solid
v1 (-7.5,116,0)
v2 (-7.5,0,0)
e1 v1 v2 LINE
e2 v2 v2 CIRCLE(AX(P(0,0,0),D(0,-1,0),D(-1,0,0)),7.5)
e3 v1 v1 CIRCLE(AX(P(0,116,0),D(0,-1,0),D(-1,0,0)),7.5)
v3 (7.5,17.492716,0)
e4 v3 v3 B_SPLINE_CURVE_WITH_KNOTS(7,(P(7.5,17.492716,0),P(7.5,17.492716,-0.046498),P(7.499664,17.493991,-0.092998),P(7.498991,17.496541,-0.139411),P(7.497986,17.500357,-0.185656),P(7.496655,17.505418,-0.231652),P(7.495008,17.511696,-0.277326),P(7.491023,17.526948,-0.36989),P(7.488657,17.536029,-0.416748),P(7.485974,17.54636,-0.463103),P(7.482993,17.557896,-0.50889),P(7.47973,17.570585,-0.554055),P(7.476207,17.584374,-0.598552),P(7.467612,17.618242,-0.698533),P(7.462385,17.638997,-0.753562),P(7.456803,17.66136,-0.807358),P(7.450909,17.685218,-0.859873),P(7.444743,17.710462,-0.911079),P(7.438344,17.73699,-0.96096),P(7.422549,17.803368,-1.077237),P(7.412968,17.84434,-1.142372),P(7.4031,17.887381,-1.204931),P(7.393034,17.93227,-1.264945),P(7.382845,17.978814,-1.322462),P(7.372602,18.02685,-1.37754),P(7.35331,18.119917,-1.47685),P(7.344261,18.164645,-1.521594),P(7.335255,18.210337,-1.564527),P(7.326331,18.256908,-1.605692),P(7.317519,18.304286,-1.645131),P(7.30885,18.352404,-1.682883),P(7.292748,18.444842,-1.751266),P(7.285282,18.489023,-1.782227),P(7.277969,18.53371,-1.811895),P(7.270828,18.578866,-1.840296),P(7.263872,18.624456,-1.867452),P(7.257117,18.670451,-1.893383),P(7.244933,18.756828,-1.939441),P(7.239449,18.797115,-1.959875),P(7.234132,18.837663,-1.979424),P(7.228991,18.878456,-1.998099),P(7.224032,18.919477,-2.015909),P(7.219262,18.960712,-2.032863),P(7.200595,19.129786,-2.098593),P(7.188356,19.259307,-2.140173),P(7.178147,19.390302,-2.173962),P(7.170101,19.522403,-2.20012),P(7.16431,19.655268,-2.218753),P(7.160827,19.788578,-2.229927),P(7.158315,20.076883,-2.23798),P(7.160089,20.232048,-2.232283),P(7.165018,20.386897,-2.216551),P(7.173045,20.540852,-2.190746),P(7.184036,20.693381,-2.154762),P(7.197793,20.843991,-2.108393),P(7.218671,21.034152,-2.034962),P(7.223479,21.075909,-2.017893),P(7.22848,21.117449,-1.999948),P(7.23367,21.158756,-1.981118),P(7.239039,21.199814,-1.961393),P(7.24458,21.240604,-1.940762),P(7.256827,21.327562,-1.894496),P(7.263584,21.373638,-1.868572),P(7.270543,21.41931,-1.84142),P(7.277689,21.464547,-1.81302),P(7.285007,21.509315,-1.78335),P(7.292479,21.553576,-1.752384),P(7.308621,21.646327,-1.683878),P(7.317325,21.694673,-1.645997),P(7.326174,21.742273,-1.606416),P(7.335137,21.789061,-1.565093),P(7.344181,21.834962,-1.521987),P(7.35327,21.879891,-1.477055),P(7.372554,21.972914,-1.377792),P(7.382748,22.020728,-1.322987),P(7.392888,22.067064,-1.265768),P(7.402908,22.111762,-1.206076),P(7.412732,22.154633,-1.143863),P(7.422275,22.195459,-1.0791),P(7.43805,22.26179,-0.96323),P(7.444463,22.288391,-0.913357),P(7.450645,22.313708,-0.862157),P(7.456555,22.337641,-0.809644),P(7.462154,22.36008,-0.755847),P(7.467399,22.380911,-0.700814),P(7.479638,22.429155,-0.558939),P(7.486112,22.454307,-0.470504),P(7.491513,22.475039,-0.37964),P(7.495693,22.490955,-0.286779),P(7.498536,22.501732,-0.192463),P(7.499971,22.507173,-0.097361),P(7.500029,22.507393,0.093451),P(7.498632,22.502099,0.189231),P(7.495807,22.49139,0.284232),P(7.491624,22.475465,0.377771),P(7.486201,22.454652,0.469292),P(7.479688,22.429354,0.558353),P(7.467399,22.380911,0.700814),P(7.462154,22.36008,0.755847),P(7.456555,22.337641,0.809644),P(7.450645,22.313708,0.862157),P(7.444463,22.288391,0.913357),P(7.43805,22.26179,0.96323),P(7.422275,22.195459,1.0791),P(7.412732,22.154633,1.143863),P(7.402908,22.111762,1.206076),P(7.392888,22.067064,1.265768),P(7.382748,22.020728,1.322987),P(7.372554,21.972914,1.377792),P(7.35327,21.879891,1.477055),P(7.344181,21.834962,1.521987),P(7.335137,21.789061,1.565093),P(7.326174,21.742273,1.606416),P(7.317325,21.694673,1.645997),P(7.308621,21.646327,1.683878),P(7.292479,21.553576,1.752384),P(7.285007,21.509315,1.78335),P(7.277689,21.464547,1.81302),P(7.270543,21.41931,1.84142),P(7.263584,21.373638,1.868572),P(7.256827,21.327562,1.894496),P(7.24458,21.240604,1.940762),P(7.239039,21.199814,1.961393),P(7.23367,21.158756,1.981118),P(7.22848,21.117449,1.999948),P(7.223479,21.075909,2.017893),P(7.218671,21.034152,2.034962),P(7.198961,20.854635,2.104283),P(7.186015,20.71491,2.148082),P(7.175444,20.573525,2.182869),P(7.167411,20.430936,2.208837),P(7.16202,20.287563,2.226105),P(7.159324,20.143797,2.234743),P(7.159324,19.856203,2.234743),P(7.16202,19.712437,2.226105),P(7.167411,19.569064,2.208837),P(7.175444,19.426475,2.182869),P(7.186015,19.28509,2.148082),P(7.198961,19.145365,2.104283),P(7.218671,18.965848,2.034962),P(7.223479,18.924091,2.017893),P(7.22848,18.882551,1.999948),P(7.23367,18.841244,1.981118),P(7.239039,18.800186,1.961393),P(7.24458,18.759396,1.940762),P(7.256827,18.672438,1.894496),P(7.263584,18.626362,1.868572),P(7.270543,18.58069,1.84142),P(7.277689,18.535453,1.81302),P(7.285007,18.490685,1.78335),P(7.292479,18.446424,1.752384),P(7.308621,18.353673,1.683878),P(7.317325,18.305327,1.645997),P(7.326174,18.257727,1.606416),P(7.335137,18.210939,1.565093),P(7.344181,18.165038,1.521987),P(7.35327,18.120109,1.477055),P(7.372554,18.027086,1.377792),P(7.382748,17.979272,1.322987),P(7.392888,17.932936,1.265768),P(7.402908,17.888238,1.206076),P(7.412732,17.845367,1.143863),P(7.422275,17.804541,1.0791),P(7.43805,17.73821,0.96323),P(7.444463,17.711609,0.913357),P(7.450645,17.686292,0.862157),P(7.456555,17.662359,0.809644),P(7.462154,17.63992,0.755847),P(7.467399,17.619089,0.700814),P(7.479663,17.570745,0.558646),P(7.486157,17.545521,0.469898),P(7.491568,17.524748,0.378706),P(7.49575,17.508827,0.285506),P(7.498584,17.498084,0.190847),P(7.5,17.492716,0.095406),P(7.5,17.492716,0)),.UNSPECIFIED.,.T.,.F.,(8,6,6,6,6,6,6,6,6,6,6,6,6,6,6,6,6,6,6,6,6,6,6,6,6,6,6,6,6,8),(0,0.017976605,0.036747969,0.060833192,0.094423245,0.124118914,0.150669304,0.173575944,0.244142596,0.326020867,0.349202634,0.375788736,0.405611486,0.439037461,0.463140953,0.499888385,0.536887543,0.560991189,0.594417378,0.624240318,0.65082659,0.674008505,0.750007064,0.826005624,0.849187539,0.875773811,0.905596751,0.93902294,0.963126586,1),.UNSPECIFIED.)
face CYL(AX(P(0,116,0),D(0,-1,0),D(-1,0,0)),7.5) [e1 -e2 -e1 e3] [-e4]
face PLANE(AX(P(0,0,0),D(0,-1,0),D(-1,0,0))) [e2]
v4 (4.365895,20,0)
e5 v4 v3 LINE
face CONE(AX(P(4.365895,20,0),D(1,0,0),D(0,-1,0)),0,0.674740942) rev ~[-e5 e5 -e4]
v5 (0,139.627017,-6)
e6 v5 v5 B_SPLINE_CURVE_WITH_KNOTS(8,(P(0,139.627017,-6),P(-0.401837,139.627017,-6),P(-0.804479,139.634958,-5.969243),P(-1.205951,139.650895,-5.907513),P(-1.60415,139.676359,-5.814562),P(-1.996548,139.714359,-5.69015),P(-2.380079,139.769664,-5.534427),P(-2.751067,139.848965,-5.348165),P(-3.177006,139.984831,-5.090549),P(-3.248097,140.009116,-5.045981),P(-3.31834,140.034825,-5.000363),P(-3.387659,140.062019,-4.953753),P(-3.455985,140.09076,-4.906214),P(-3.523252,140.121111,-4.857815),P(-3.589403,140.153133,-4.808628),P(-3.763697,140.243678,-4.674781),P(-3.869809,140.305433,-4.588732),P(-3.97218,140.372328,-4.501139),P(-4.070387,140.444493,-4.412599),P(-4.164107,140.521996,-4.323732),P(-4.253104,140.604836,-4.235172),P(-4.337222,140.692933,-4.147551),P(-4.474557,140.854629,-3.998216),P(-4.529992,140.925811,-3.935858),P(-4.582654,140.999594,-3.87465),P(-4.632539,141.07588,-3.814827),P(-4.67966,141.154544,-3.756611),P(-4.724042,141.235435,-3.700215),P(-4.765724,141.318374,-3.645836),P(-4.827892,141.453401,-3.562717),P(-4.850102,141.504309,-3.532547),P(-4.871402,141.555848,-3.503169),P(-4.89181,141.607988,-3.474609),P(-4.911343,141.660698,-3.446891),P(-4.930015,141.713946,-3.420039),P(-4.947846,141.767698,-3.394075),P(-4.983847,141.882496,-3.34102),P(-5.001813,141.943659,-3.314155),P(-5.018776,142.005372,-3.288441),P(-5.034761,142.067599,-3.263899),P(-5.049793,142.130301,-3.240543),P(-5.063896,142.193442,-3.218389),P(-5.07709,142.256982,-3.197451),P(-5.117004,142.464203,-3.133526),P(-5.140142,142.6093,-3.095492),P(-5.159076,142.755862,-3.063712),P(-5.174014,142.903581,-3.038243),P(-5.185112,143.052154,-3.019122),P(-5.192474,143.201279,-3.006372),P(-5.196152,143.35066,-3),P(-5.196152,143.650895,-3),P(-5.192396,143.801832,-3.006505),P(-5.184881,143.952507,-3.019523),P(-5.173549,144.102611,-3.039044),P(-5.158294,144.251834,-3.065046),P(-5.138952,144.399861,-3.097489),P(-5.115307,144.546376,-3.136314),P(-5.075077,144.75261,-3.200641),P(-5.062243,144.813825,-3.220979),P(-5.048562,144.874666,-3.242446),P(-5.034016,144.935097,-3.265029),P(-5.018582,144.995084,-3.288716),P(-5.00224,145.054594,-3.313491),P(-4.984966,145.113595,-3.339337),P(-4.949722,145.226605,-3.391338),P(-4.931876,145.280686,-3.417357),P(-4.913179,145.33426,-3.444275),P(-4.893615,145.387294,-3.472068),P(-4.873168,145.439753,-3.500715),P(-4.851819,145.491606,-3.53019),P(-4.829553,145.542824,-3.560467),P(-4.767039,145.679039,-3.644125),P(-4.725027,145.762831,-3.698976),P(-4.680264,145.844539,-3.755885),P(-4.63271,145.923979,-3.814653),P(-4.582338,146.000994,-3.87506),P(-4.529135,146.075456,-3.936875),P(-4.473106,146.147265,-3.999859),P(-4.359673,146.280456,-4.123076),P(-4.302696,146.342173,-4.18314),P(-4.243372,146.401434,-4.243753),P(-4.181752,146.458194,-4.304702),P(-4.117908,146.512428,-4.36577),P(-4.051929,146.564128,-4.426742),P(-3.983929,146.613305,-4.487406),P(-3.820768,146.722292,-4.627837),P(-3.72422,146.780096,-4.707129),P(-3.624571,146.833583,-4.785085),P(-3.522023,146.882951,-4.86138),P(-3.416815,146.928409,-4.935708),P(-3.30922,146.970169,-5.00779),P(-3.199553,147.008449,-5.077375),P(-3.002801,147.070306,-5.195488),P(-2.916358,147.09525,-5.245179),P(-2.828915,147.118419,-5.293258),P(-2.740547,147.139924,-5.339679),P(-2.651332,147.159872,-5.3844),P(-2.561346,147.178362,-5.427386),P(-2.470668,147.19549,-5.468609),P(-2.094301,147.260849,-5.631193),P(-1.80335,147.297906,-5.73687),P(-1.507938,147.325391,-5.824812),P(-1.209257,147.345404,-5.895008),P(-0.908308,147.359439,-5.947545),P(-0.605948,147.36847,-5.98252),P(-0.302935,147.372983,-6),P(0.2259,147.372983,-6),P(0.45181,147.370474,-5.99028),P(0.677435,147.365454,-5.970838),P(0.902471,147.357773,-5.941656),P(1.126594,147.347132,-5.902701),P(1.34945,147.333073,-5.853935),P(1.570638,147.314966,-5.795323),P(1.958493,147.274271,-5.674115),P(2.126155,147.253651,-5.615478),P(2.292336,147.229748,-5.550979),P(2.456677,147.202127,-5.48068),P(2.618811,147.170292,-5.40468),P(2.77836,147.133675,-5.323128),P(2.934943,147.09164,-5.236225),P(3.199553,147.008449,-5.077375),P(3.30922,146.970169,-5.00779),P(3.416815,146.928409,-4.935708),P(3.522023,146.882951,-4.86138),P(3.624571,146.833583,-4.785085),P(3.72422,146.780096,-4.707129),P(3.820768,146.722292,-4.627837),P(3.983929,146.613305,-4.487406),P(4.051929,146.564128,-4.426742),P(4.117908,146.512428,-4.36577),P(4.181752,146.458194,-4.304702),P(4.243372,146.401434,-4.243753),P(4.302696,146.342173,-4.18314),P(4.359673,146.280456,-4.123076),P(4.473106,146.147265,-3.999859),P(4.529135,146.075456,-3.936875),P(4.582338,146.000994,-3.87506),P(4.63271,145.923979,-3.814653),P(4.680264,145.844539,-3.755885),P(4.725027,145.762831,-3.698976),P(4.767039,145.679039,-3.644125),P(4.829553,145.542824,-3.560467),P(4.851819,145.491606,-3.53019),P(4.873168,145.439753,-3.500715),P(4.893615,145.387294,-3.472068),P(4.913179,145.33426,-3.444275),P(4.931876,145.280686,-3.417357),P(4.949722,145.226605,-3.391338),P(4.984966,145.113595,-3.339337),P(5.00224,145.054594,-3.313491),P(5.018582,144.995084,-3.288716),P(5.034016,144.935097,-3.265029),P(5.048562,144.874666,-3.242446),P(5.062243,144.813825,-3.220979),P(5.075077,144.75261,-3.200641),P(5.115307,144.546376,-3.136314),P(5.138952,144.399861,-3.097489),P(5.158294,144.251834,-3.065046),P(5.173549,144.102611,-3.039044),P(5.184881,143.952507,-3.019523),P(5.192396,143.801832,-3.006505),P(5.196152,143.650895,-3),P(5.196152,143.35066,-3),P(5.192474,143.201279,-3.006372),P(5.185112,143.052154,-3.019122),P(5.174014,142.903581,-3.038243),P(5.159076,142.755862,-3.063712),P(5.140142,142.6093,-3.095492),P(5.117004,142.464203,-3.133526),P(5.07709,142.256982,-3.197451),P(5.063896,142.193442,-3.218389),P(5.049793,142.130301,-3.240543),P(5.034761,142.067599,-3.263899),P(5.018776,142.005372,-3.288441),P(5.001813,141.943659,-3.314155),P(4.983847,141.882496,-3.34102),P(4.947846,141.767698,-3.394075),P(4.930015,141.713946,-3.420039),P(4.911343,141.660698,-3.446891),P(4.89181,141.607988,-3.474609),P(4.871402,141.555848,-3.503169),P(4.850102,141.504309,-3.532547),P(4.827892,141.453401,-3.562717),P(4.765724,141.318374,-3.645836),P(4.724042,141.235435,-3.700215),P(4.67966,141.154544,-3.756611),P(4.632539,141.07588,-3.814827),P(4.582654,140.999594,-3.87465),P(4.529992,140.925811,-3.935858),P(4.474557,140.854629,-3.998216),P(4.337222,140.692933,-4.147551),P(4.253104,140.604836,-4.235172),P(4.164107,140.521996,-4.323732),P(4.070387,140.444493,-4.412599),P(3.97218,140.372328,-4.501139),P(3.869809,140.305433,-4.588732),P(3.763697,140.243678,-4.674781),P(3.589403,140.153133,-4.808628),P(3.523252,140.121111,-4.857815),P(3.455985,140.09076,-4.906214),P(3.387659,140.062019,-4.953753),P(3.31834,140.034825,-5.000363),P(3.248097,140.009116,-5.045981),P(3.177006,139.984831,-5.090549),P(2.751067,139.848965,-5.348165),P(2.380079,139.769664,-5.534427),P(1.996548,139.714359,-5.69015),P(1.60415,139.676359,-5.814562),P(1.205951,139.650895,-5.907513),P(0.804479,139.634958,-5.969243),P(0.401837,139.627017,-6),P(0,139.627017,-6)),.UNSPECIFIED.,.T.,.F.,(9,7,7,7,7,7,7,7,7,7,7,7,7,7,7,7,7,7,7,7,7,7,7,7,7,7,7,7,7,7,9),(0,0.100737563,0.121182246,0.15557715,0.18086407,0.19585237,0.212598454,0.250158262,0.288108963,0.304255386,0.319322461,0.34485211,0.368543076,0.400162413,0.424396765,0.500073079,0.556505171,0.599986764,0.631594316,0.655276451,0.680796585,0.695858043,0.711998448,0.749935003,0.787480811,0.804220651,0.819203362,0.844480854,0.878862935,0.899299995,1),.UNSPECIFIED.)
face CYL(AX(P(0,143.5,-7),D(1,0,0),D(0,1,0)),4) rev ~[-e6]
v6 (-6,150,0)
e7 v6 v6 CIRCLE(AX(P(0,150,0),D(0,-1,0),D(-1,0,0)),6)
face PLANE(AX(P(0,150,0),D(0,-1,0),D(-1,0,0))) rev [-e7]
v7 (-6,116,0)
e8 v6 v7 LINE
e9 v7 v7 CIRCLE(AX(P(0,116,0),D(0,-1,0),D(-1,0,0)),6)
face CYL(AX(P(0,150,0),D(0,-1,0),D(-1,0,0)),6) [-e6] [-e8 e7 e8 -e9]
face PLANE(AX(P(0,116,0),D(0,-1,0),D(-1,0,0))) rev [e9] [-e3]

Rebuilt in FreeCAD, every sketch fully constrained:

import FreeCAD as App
import Part
import Sketcher
from FreeCAD import Vector

doc = App.newDocument("Part")
body = doc.addObject("PartDesign::Body", "Body")

sketch1 = body.newObject("Sketcher::SketchObject", "Sketch")
sketch1.AttachmentSupport = (doc.getObject("XY_Plane"), [""])
sketch1.MapMode = "FlatFace"
sketch1.addGeometry([
    Part.LineSegment(Vector(-7.5, 0, 0), Vector(0, 0, 0)),
    Part.LineSegment(Vector(0, 0, 0), Vector(0, 150, 0)),
    Part.LineSegment(Vector(0, 150, 0), Vector(-6, 150, 0)),
    Part.LineSegment(Vector(-6, 150, 0), Vector(-6, 116, 0)),
    Part.LineSegment(Vector(-6, 116, 0), Vector(-7.5, 116, 0)),
    Part.LineSegment(Vector(-7.5, 116, 0), Vector(-7.5, 0, 0)),
], False)
sketch1.addConstraint([
    Sketcher.Constraint("Coincident", 0, 2, 1, 1),
    Sketcher.Constraint("Coincident", 1, 2, 2, 1),
    Sketcher.Constraint("Coincident", 2, 2, 3, 1),
    Sketcher.Constraint("Coincident", 3, 2, 4, 1),
    Sketcher.Constraint("Coincident", 4, 2, 5, 1),
    Sketcher.Constraint("Coincident", 5, 2, 0, 1),
    Sketcher.Constraint("Horizontal", 0),
    Sketcher.Constraint("Vertical", 1),
    Sketcher.Constraint("Horizontal", 2),
    Sketcher.Constraint("Vertical", 3),
    Sketcher.Constraint("Horizontal", 4),
    Sketcher.Constraint("Vertical", 5),
    Sketcher.Constraint("Coincident", 0, 2, -1, 1),
    Sketcher.Constraint("DistanceX", 2, 2, 2, 1, 6.0),
    Sketcher.Constraint("DistanceY", 1, 1, 1, 2, 150.0),
    Sketcher.Constraint("DistanceY", 3, 2, 3, 1, 34.0),
    Sketcher.Constraint("DistanceX", 0, 1, 0, 2, 7.5),
])
revolution = body.newObject("PartDesign::Revolution", "Revolution")
revolution.Profile = sketch1
revolution.ReferenceAxis = (sketch1, ["V_Axis"])
revolution.Angle = 360

sketch2 = body.newObject("Sketcher::SketchObject", "Sketch001")
sketch2.AttachmentSupport = (doc.getObject("XY_Plane"), [""])
sketch2.MapMode = "FlatFace"
sketch2.addGeometry([
    Part.LineSegment(Vector(4.4, 20, 0), Vector(9.4, 16, 0)),
    Part.LineSegment(Vector(9.4, 16, 0), Vector(9.4, 20, 0)),
    Part.LineSegment(Vector(9.4, 20, 0), Vector(4.4, 20, 0)),
], False)
sketch2.addGeometry(Part.LineSegment(Vector(4.4, 20, 0), Vector(9.4, 20, 0)), True)
sketch2.addConstraint([
    Sketcher.Constraint("Coincident", 0, 2, 1, 1),
    Sketcher.Constraint("Coincident", 1, 2, 2, 1),
    Sketcher.Constraint("Coincident", 2, 2, 0, 1),
    Sketcher.Constraint("Vertical", 1),
    Sketcher.Constraint("Horizontal", 2),
    Sketcher.Constraint("Horizontal", 3),
    Sketcher.Constraint("Coincident", 3, 1, 2, 2),
    Sketcher.Constraint("Vertical", 0, 2, 3, 2),
    Sketcher.Constraint("DistanceX", 2, 2, 2, 1, 5.0),
    Sketcher.Constraint("DistanceY", 1, 1, 1, 2, 4.0),
    Sketcher.Constraint("DistanceY", -1, 1, 0, 2, 16.0),
    Sketcher.Constraint("DistanceX", -1, 1, 0, 2, 9.365895),
])
groove = body.newObject("PartDesign::Groove", "Groove")
groove.Profile = sketch2
groove.ReferenceAxis = (sketch2, ["Axis0"])
groove.Angle = 360

sketch3 = body.newObject("Sketcher::SketchObject", "Sketch002")
sketch3.AttachmentSupport = (doc.getObject("YZ_Plane"), [""])
sketch3.MapMode = "FlatFace"
sketch3.addGeometry(Part.Circle(Vector(143.5, -7, 0), Vector(0, 0, 1), 4), False)
sketch3.addConstraint([
    Sketcher.Constraint("Diameter", 0, 8.0),
    Sketcher.Constraint("DistanceY", 0, 3, -1, 1, 7.0),
    Sketcher.Constraint("DistanceX", -1, 1, 0, 3, 143.5),
])
pocket1 = body.newObject("PartDesign::Pocket", "Pocket")
pocket1.Profile = sketch3
pocket1.Length = 25
pocket1.Midplane = True

doc.recompute()
